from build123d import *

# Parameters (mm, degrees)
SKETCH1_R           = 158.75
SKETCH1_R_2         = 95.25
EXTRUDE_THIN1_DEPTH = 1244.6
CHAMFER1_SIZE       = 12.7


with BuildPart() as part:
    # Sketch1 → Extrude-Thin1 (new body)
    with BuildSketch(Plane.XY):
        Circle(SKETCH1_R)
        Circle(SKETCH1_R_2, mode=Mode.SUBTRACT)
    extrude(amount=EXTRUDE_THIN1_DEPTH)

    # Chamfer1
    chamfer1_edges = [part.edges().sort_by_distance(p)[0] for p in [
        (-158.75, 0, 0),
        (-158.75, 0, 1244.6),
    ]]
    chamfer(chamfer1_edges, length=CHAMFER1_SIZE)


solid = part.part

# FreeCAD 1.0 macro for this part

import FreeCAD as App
import Part
import Sketcher

V = App.Vector
Q = App.Units.Quantity


def edges_at(feature, points):
    """Names of the edges that pass closest to the given points."""
    edges = feature.Shape.Edges
    near = lambda p: min(range(len(edges)), key=lambda i: edges[i].distToShape(Part.Vertex(*p))[0])
    return sorted({f"Edge{near(p) + 1}" for p in points})

doc = App.newDocument("Part")
body = doc.addObject("PartDesign::Body", "Body")

sketch1 = doc.addObject("Sketcher::SketchObject", "Sketch")
body.addObject(sketch1)
sketch1.AttachmentSupport = (doc.XY_Plane, [""])
sketch1.MapMode = "FlatFace"
sketch1.addGeometry([
    Part.Circle(V(0, 0, 0), V(0, 0, 1), 159),
    Part.Circle(V(0, 0, 0), V(0, 0, 1), 95),
], False)
sketch1.addConstraint([
    Sketcher.Constraint("Coincident", 0, 3, -1, 1),
    Sketcher.Constraint("Coincident", 1, 3, -1, 1),
    Sketcher.Constraint("Diameter", 0, Q("12.5 in")),
    Sketcher.Constraint("Diameter", 1, Q("7.5 in")),
])
pad1 = doc.addObject("PartDesign::Pad", "Pad")
body.addObject(pad1)
pad1.Profile = sketch1
pad1.Length = Q("49 in")
doc.recompute()

chamfer = doc.addObject("PartDesign::Chamfer", "Chamfer")
body.addObject(chamfer)
chamfer.Base = (pad1, edges_at(pad1, [(-158.75, 0, 0), (-158.75, 0, 1244.6)]))
chamfer.Size = Q("0.5 in")

doc.recompute()
